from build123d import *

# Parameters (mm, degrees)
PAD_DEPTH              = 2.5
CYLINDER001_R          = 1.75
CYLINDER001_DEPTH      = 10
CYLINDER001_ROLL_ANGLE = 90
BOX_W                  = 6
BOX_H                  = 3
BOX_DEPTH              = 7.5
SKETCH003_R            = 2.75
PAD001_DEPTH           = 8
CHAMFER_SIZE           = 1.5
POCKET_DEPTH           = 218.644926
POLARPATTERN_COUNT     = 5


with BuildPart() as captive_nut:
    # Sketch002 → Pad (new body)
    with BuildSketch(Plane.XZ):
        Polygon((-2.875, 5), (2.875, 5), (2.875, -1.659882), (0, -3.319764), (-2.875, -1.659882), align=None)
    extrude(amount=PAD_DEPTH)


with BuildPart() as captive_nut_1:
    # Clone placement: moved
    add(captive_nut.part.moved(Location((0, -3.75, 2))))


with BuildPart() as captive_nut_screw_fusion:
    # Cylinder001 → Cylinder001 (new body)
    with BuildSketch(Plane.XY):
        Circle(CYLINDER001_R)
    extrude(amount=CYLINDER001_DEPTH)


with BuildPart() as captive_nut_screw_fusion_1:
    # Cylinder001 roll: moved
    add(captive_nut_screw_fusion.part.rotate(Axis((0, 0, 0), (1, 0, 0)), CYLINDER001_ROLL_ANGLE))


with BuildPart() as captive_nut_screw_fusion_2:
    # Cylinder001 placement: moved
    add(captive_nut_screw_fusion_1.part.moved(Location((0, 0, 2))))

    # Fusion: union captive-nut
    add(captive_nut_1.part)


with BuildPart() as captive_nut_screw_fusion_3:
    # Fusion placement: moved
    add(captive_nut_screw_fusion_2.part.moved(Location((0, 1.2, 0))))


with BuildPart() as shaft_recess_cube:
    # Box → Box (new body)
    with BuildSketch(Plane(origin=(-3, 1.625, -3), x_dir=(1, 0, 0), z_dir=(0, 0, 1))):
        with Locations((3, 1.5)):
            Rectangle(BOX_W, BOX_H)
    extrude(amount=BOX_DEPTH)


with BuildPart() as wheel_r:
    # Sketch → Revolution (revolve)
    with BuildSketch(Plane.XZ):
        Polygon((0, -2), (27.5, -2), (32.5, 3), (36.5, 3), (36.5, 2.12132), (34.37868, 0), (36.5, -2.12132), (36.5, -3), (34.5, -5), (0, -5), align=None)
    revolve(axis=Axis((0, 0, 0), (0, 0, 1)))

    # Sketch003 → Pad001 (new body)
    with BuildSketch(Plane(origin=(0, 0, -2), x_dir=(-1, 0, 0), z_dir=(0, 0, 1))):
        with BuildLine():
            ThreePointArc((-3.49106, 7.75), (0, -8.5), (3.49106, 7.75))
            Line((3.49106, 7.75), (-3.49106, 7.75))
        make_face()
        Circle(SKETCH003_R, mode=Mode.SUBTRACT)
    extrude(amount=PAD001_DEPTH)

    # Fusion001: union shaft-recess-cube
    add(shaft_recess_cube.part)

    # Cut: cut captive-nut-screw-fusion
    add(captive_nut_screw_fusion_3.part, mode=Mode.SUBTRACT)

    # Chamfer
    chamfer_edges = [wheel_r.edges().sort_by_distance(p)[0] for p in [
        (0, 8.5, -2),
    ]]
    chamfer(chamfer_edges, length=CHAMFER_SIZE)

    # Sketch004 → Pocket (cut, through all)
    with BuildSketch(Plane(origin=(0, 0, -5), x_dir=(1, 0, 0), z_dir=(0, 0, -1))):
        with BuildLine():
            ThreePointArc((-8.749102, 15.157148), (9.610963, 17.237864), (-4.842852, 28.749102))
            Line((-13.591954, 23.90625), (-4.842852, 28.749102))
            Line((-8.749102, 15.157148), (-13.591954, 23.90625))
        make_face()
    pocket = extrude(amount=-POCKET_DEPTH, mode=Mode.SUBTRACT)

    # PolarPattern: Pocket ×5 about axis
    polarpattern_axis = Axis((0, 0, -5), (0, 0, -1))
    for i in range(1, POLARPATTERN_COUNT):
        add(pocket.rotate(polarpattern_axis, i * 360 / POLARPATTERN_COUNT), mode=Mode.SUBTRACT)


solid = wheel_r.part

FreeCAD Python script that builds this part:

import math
import FreeCAD as App
import Part
import Sketcher

V = App.Vector
Q = App.Units.Quantity


def edges_at(feature, points):
    """Names of the edges that pass closest to the given points."""
    edges = feature.Shape.Edges
    near = lambda p: min(range(len(edges)), key=lambda i: edges[i].distToShape(Part.Vertex(*p))[0])
    return sorted({f"Edge{near(p) + 1}" for p in points})


def add_polygon(sketch, points):
    """Adds a closed chain of lines whose ends are joined by coincident constraints."""
    first, n = sketch.GeometryCount, len(points)
    for a, b in zip(points, points[1:] + points[:1]):
        sketch.addGeometry(Part.LineSegment(App.Vector(*a, 0), App.Vector(*b, 0)), False)
    for i in range(n):
        sketch.addConstraint(Sketcher.Constraint("Coincident", first + i, 2, first + (i + 1) % n, 1))

doc = App.newDocument("Part")
body = doc.addObject("PartDesign::Body", "Body")

# Sketch on XZ plane
sketch1 = body.newObject("Sketcher::SketchObject", "Sketch")
sketch1.AttachmentSupport = (doc.getObject("XZ_Plane"), [""])
sketch1.MapMode = "FlatFace"
add_polygon(sketch1, [(2.9, 5), (-2.9, 5), (-2.9, -1.7), (0, -3.3), (2.9, -1.7)])  # lines 0-4
sketch1.addConstraint(Sketcher.Constraint("Horizontal", 0))
sketch1.addConstraint(Sketcher.Constraint("Vertical", 1))
sketch1.addConstraint(Sketcher.Constraint("Vertical", 4))
sketch1.addConstraint(Sketcher.Constraint("Symmetric", 1, 2, 3, 2, -2))
sketch1.addConstraint(Sketcher.Constraint("PointOnObject", 2, 2, -2))
sketch1.addConstraint(Sketcher.Constraint("Angle", 2, Q("-30 deg")))
sketch1.addConstraint(Sketcher.Constraint("DistanceY", -1, 1, 0, 2, 5.0))
sketch1.addConstraint(Sketcher.Constraint("DistanceX", 0, 2, 0, 1, 5.75))
sketch1.addConstraint(Sketcher.Constraint("DistanceY", 1, 2, 1, 1, 6.659882))
pad1 = body.newObject("PartDesign::Pad", "Pad")
pad1.Profile = sketch1
pad1.Length = 2.5
body2 = doc.addObject("PartDesign::Body", "Body001")
doc.recompute()

body.Placement = App.Placement(V(0, -3.75, 2), App.Rotation(V(0, 0, 1), 0))
boolean = body2.newObject("PartDesign::Boolean", "Boolean")
boolean.Type = "Fuse"
boolean.addObjects([body])
body3 = doc.addObject("PartDesign::Body", "Body002")

# Sketch on XY plane
sketch2 = body3.newObject("Sketcher::SketchObject", "Sketch001")
sketch2.AttachmentSupport = (doc.getObject("XY_Plane002"), [""])
sketch2.MapMode = "FlatFace"
sketch2.addGeometry(Part.Circle(V(0, 0, 0), V(0, 0, 1), 1.8), False)
sketch2.addConstraint(Sketcher.Constraint("Coincident", 0, 3, -1, 1))
sketch2.addConstraint(Sketcher.Constraint("Diameter", 0, 3.5))
pad2 = body3.newObject("PartDesign::Pad", "Pad001")
pad2.Profile = sketch2
pad2.Length = 10
body4 = doc.addObject("PartDesign::Body", "Body003")
doc.recompute()

body3.Placement = App.Placement(V(0, 0, 0), App.Rotation(V(1, 0, 0), 90))
boolean2 = body4.newObject("PartDesign::Boolean", "Boolean001")
boolean2.Type = "Fuse"
boolean2.addObjects([body3])
body5 = doc.addObject("PartDesign::Body", "Body004")
doc.recompute()

body4.Placement = App.Placement(V(0, 0, 2), App.Rotation(V(0, 0, 1), 0))
boolean3 = body5.newObject("PartDesign::Boolean", "Boolean002")
boolean3.Type = "Fuse"
boolean3.addObjects([body4])
doc.recompute()

boolean4 = body5.newObject("PartDesign::Boolean", "Boolean003")
boolean4.Type = "Fuse"
boolean4.addObjects([body2])
body6 = doc.addObject("PartDesign::Body", "Body005")
doc.recompute()

body5.Placement = App.Placement(V(0, 1.2, 0), App.Rotation(V(0, 0, 1), 0))
boolean5 = body6.newObject("PartDesign::Boolean", "Boolean004")
boolean5.Type = "Fuse"
boolean5.addObjects([body5])
body7 = doc.addObject("PartDesign::Body", "Body006")

# Sketch on XY plane
sketch3 = body7.newObject("Sketcher::SketchObject", "Sketch002")
sketch3.AttachmentSupport = (doc.getObject("XY_Plane006"), [""])
sketch3.MapMode = "FlatFace"
sketch3.AttachmentOffset = App.Placement(V(0, 0, -3), App.Rotation())
add_polygon(sketch3, [(-3, 4.6), (-3, 1.6), (3, 1.6), (3, 4.6)])  # lines 0-3
sketch3.addConstraint(Sketcher.Constraint("Vertical", 0))
sketch3.addConstraint(Sketcher.Constraint("Horizontal", 1))
sketch3.addConstraint(Sketcher.Constraint("Vertical", 2))
sketch3.addConstraint(Sketcher.Constraint("Horizontal", 3))
sketch3.addConstraint(Sketcher.Constraint("DistanceX", 1, 1, 1, 2, 6.0))
sketch3.addConstraint(Sketcher.Constraint("DistanceY", 0, 2, 0, 1, 3.0))
sketch3.addConstraint(Sketcher.Constraint("DistanceX", 0, 2, -1, 1, 3.0))
sketch3.addConstraint(Sketcher.Constraint("DistanceY", -1, 1, 0, 2, 1.625))
pad3 = body7.newObject("PartDesign::Pad", "Pad002")
pad3.Profile = sketch3
pad3.Length = 7.5
body8 = doc.addObject("PartDesign::Body", "Body007")

# Sketch on XZ plane
sketch4 = body8.newObject("Sketcher::SketchObject", "Sketch003")
sketch4.AttachmentSupport = (doc.getObject("XZ_Plane007"), [""])
sketch4.MapMode = "FlatFace"
add_polygon(sketch4, [(27.5, -2), (0, -2), (0, -5), (34.5, -5), (36.5, -3), (36.5, -2.1), (34.4, 0), (36.5, 2.1), (36.5, 3), (32.5, 3)])  # lines 0-9
sketch4.addConstraint(Sketcher.Constraint("Horizontal", 0))
sketch4.addConstraint(Sketcher.Constraint("Vertical", 1))
sketch4.addConstraint(Sketcher.Constraint("Horizontal", 2))
sketch4.addConstraint(Sketcher.Constraint("Vertical", 4))
sketch4.addConstraint(Sketcher.Constraint("Vertical", 7))
sketch4.addConstraint(Sketcher.Constraint("Horizontal", 8))
sketch4.addConstraint(Sketcher.Constraint("Symmetric", 4, 2, 6, 2, -1))
sketch4.addConstraint(Sketcher.Constraint("PointOnObject", 0, 2, -2))
sketch4.addConstraint(Sketcher.Constraint("PointOnObject", 5, 2, -1))
sketch4.addConstraint(Sketcher.Constraint("Perpendicular", 3, 5))
sketch4.addConstraint(Sketcher.Constraint("Perpendicular", 5, 6))
sketch4.addConstraint(Sketcher.Constraint("Parallel", 6, 9))
sketch4.addConstraint(Sketcher.Constraint("Equal", 4, 7))
sketch4.addConstraint(Sketcher.Constraint("DistanceX", 8, 2, 8, 1, 4.0))
sketch4.addConstraint(Sketcher.Constraint("DistanceY", 1, 2, 1, 1, 3.0))
sketch4.addConstraint(Sketcher.Constraint("Distance", 5, 3.0))
sketch4.addConstraint(Sketcher.Constraint("DistanceX", 0, 2, 0, 1, 27.5))
sketch4.addConstraint(Sketcher.Constraint("DistanceX", 2, 1, 2, 2, 34.5))
sketch4.addConstraint(Sketcher.Constraint("DistanceY", 0, 2, -1, 1, 2.0))
revolution = body8.newObject("PartDesign::Revolution", "Revolution")
revolution.Profile = sketch4
revolution.ReferenceAxis = (sketch4, ["V_Axis"])
revolution.Angle = 360

# Sketch on XY plane
sketch5 = body8.newObject("Sketcher::SketchObject", "Sketch004")
sketch5.AttachmentSupport = (doc.getObject("XY_Plane007"), [""])
sketch5.MapMode = "FlatFace"
sketch5.AttachmentOffset = App.Placement(V(0, 0, -2), App.Rotation())
sketch5.addGeometry(Part.ArcOfCircle(Part.Circle(V(0, 0, 0), V(0, 0, 1), 8.5), math.radians(-66), math.radians(246)), False)
sketch5.addGeometry(Part.LineSegment(V(-3.5, -7.8, 0), V(3.5, -7.8, 0)), False)
sketch5.addGeometry(Part.Circle(V(0, 0, 0), V(0, 0, 1), 2.8), False)
sketch5.addConstraint(Sketcher.Constraint("Coincident", 0, 1, 1, 2))
sketch5.addConstraint(Sketcher.Constraint("Coincident", 1, 1, 0, 2))
sketch5.addConstraint(Sketcher.Constraint("Horizontal", 1))
sketch5.addConstraint(Sketcher.Constraint("Coincident", 0, 3, -1, 1))
sketch5.addConstraint(Sketcher.Constraint("Coincident", 2, 3, -1, 1))
sketch5.addConstraint(Sketcher.Constraint("Diameter", 2, 5.5))
sketch5.addConstraint(Sketcher.Constraint("Radius", 0, 8.5))
sketch5.addConstraint(Sketcher.Constraint("DistanceY", 0, 1, -1, 1, 7.75))
pad4 = body8.newObject("PartDesign::Pad", "Pad003")
pad4.Profile = sketch5
pad4.Length = 8
doc.recompute()

boolean6 = body8.newObject("PartDesign::Boolean", "Boolean005")
boolean6.Type = "Fuse"
boolean6.addObjects([body7])
doc.recompute()

boolean7 = body8.newObject("PartDesign::Boolean", "Boolean006")
boolean7.Type = "Cut"
boolean7.addObjects([body6])
doc.recompute()

chamfer = body8.newObject("PartDesign::Chamfer", "Chamfer")
chamfer.Base = (boolean7, edges_at(boolean7, [(0, 8.5, -2)]))
chamfer.Size = 1.5

# Sketch on XY plane
sketch6 = body8.newObject("Sketcher::SketchObject", "Sketch005")
sketch6.AttachmentSupport = (doc.getObject("XY_Plane007"), [""])
sketch6.MapMode = "FlatFace"
sketch6.AttachmentOffset = App.Placement(V(0, 0, -5), App.Rotation())
sketch6.addGeometry(Part.ArcOfCircle(Part.Circle(V(0, -20, 0), V(0, 0, 1), 10), math.radians(-119), math.radians(151)), False)
sketch6.addGeometry(Part.LineSegment(V(-5, -29, 0), V(-14, -24, 0)), False)
sketch6.addGeometry(Part.LineSegment(V(-14, -24, 0), V(-9, -15, 0)), False)
sketch6.addConstraint(Sketcher.Constraint("Tangent", 0, 1, 1, 1))
sketch6.addConstraint(Sketcher.Constraint("Coincident", 1, 2, 2, 1))
sketch6.addConstraint(Sketcher.Constraint("Tangent", 2, 2, 0, 2))
sketch6.addConstraint(Sketcher.Constraint("PointOnObject", 0, 3, -2))
sketch6.addConstraint(Sketcher.Constraint("Perpendicular", 1, 2))
sketch6.addConstraint(Sketcher.Constraint("Radius", 0, 10.0))
sketch6.addConstraint(Sketcher.Constraint("DistanceY", 0, 3, -1, 1, 20.0))
sketch6.addConstraint(Sketcher.Constraint("DistanceX", 1, 2, 0, 1, 8.749102))
pocket1 = body8.newObject("PartDesign::Pocket", "Pocket")
pocket1.Profile = sketch6
pocket1.Type = "ThroughAll"
pocket1.Reversed = True
doc.recompute()

polarpattern = body8.newObject("PartDesign::PolarPattern", "PolarPattern")
polarpattern.Originals = [pocket1]
polarpattern.Axis = (doc.getObject("Z_Axis007"), [""])
polarpattern.Angle = 360
polarpattern.Occurrences = 5
body8.Tip = polarpattern

doc.recompute()
